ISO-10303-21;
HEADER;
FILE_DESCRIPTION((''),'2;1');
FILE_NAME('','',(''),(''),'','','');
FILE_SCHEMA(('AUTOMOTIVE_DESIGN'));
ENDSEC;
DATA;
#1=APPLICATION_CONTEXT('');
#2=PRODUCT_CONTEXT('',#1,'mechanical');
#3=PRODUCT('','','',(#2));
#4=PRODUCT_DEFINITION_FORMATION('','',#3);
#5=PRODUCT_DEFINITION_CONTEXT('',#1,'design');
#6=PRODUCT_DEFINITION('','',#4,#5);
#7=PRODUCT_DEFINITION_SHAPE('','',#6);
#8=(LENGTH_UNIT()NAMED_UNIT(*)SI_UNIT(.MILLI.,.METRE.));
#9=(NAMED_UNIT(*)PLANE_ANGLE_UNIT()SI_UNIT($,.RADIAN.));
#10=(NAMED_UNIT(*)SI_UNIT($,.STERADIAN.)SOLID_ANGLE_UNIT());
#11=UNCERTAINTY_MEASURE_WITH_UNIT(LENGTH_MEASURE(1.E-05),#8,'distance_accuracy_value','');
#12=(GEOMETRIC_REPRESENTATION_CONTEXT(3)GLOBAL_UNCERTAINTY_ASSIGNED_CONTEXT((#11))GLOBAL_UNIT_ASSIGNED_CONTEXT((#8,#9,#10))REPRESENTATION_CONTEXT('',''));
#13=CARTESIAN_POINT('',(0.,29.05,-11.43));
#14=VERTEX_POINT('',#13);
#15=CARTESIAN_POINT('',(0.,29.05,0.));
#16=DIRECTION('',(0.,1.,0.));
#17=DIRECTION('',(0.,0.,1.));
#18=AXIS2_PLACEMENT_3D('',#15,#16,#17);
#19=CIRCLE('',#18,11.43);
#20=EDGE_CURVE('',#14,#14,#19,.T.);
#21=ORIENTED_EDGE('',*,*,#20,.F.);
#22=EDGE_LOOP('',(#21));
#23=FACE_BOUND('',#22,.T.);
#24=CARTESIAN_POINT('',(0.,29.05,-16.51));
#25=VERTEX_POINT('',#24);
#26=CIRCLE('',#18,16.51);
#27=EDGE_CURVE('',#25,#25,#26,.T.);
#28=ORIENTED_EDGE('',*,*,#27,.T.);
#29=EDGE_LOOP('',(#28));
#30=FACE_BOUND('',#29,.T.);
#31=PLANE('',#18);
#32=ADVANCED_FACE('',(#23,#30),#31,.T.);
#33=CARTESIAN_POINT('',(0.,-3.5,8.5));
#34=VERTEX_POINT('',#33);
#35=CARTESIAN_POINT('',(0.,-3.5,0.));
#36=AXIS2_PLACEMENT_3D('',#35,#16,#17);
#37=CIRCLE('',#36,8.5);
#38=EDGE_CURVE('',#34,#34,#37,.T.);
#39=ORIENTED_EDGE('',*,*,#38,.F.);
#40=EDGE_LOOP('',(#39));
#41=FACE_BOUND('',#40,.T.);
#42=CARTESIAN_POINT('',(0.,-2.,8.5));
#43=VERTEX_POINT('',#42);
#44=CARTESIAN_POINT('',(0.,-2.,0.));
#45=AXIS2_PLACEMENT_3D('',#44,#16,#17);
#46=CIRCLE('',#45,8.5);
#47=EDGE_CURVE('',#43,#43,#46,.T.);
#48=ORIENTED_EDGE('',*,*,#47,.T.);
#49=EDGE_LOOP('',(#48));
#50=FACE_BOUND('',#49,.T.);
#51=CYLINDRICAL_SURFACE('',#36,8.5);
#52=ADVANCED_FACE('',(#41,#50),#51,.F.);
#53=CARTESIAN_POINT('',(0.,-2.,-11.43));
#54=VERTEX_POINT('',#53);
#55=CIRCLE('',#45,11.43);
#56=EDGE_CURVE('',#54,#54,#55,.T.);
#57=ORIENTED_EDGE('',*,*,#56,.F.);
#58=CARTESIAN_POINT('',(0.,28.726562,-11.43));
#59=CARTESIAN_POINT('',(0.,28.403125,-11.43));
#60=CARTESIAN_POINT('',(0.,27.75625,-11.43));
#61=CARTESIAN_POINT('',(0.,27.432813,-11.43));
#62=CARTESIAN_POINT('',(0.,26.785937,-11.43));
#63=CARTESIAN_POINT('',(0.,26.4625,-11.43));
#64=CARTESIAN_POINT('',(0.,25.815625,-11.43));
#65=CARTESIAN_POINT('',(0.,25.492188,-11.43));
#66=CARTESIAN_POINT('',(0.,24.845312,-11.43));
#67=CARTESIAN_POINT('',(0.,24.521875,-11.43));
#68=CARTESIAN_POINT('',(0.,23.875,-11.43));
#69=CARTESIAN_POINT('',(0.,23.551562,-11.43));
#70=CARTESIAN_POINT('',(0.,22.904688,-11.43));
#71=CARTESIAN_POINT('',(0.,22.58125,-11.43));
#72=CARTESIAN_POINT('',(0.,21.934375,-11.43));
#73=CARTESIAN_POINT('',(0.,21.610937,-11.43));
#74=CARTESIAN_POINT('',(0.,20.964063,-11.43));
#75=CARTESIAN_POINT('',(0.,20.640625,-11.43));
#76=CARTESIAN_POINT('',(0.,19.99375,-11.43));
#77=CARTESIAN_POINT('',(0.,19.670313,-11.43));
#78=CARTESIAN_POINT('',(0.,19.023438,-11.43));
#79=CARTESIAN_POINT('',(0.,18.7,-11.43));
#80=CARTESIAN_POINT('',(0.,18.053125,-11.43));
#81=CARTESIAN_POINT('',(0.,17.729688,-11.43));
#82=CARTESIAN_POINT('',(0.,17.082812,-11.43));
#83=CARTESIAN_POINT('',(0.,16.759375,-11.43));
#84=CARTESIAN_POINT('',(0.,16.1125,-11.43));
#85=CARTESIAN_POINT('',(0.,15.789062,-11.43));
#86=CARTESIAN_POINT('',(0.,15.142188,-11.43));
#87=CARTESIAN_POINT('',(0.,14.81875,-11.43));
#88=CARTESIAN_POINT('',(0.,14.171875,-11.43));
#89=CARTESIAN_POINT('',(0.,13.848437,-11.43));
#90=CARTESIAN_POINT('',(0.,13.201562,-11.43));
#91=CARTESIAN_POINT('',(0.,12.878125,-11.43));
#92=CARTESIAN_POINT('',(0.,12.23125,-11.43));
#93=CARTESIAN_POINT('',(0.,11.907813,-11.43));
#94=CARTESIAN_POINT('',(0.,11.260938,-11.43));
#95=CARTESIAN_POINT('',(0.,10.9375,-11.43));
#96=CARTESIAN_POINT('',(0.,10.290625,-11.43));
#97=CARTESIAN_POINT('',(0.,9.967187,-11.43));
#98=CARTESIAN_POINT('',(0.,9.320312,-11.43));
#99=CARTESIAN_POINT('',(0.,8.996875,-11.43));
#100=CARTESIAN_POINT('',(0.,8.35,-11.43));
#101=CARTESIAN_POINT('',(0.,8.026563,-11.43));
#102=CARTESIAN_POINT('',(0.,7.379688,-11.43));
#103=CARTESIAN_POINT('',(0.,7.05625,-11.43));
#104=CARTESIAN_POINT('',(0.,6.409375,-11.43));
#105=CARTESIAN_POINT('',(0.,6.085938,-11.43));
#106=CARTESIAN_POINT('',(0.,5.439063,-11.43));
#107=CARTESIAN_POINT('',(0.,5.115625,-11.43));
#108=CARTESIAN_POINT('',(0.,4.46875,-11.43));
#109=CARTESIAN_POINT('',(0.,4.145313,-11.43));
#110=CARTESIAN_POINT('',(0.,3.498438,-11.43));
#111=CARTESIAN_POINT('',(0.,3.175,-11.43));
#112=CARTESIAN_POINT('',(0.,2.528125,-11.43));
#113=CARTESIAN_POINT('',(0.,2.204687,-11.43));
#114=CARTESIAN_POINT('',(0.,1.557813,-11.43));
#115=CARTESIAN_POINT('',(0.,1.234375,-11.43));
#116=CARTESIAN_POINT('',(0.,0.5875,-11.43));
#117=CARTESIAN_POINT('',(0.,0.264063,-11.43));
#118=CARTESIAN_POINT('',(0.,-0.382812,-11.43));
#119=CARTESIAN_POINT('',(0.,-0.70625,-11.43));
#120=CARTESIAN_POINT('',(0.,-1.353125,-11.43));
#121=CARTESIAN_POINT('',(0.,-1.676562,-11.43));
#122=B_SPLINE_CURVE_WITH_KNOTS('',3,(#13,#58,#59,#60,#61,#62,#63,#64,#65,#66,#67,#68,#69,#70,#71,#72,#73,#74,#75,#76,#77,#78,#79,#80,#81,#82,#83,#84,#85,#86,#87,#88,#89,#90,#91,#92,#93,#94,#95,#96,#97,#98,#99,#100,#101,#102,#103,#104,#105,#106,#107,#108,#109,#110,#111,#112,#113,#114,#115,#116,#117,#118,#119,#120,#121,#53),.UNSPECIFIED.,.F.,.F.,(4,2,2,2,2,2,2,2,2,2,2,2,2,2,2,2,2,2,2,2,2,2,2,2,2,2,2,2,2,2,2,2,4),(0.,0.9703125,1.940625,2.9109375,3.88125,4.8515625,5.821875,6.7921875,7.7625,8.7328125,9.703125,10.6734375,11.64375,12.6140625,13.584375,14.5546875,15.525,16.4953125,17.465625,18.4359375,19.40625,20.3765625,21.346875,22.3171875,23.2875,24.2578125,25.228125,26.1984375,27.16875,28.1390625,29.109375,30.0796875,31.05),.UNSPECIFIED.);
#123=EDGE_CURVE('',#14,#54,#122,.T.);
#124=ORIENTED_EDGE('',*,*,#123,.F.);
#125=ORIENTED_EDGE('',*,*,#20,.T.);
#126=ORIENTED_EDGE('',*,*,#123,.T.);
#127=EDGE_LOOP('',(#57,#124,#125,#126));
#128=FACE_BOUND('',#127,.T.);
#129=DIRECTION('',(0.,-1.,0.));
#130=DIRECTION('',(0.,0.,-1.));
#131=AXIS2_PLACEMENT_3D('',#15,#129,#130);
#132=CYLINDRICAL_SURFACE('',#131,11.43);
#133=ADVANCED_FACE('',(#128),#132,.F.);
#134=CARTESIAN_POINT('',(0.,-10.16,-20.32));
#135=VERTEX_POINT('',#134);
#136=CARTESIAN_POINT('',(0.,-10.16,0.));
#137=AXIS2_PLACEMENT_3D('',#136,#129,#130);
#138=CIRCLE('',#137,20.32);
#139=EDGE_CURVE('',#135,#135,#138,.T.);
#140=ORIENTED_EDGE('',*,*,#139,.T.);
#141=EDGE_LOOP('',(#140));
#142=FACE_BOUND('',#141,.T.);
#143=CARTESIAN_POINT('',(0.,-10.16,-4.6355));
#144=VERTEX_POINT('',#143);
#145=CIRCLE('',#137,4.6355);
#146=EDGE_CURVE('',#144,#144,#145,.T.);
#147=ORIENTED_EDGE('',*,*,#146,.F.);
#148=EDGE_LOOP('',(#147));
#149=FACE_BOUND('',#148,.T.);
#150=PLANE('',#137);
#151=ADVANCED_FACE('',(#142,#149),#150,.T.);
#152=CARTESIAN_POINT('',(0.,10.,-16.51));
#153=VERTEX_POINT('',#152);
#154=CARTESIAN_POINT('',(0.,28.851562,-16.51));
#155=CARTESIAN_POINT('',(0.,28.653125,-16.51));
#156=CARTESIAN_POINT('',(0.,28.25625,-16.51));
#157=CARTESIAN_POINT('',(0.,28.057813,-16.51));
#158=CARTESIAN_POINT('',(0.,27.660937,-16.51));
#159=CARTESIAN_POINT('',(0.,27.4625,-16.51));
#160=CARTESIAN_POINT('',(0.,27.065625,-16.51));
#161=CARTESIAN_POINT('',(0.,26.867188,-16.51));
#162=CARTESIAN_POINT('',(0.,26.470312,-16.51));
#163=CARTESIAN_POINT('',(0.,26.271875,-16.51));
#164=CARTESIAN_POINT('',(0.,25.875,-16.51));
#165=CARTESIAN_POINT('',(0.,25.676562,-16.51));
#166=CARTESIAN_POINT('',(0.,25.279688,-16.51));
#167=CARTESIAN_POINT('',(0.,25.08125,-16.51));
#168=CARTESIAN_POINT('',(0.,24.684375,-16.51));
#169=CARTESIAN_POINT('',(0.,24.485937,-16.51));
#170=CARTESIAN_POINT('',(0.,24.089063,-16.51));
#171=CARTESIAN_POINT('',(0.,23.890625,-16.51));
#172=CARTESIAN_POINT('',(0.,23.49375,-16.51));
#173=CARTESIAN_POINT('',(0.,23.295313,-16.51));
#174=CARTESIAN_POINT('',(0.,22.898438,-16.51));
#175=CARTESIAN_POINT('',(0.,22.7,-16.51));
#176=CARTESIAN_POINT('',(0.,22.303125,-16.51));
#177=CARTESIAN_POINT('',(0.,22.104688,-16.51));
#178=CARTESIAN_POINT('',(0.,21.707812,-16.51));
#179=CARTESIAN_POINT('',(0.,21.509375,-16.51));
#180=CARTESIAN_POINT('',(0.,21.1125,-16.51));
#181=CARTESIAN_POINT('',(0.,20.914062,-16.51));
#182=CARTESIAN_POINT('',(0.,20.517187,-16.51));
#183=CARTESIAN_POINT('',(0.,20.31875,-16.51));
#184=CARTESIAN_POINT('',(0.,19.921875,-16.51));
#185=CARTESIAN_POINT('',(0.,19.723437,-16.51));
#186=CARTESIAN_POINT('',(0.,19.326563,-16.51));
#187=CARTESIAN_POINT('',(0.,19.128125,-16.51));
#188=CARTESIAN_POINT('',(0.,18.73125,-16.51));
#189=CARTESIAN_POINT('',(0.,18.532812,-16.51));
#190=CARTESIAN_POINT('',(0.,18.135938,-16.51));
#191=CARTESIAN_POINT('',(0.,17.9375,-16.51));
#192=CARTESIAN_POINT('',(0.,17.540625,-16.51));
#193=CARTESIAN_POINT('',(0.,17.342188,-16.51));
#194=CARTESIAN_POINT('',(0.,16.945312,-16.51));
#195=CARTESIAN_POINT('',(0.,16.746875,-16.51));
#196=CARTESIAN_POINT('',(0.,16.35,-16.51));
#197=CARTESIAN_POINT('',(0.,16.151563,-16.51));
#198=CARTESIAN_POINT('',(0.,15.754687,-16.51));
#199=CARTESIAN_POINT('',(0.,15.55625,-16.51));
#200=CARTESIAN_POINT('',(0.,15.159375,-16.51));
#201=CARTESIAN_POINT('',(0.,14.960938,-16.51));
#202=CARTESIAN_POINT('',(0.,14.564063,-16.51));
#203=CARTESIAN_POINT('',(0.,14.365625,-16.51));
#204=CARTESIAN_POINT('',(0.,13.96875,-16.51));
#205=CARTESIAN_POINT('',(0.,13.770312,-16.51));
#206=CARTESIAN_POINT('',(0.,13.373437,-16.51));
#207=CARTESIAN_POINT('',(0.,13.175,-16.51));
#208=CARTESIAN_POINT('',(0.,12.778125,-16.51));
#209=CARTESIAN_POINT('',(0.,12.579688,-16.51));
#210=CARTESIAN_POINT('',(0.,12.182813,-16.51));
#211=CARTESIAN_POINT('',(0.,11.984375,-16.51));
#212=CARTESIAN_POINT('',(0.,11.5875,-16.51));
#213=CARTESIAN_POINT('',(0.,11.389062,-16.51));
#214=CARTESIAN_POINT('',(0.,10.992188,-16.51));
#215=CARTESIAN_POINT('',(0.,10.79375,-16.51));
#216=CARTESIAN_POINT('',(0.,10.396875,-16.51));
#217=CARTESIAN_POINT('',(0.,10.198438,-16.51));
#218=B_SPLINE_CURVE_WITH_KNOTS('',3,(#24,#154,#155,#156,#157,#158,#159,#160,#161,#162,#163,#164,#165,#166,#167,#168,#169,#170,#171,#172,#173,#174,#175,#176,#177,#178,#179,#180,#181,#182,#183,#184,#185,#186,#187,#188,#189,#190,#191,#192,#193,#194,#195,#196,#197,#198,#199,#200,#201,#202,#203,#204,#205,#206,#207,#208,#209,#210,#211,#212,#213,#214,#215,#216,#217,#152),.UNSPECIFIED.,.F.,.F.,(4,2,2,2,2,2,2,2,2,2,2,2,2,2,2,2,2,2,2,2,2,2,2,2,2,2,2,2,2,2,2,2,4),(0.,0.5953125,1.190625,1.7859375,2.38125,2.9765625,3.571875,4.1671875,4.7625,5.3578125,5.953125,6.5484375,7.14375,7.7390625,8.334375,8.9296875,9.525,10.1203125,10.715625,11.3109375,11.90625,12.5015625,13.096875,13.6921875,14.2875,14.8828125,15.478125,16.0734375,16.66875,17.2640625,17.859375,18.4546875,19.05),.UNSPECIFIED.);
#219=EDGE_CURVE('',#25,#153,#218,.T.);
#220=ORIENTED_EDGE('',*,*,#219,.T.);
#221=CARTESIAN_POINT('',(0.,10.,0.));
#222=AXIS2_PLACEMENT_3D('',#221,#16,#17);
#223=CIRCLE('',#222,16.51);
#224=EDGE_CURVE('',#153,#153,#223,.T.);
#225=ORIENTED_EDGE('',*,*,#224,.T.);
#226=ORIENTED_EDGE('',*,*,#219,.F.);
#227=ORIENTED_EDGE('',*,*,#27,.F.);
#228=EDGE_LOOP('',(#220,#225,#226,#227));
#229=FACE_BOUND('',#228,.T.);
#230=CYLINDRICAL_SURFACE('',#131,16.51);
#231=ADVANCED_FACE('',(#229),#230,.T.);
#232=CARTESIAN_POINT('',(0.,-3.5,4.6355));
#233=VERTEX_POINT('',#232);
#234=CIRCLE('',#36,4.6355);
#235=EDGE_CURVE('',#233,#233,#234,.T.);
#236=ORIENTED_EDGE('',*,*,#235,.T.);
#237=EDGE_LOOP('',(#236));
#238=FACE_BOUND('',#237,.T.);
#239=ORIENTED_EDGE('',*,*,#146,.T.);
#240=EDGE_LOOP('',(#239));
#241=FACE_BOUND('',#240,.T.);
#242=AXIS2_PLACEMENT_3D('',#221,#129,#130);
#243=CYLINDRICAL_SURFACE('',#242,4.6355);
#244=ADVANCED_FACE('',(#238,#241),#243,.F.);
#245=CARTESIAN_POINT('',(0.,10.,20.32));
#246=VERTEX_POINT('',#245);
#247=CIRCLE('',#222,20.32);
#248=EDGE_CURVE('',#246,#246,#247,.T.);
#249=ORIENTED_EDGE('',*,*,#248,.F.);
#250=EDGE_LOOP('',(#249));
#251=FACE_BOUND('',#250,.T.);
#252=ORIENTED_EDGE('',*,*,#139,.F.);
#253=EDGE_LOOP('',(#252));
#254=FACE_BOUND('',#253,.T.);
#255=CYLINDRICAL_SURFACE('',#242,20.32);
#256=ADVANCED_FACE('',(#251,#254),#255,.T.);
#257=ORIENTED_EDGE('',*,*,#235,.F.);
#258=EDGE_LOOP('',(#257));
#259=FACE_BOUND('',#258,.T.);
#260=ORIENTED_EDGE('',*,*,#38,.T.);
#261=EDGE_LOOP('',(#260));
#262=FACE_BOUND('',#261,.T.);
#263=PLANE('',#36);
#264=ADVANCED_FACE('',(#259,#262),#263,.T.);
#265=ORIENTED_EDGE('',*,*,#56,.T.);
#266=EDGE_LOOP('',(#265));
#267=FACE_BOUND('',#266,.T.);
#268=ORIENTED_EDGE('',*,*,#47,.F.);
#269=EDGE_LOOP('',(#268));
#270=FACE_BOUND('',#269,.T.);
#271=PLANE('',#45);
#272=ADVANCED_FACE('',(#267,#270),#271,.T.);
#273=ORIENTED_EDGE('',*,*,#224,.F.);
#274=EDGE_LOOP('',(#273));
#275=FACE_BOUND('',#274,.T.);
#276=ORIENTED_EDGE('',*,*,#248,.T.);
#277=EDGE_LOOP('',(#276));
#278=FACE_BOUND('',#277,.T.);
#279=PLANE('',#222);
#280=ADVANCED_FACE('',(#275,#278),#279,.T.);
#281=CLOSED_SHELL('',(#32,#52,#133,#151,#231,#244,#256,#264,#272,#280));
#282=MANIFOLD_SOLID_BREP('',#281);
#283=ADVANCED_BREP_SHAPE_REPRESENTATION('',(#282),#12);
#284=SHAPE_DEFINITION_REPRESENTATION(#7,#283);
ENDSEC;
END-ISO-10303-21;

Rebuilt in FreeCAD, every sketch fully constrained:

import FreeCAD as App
import Part
import Sketcher
from FreeCAD import Vector
Q = App.Units.Quantity

doc = App.newDocument("Part")
body = doc.addObject("PartDesign::Body", "Body")

sketch1 = doc.addObject("Sketcher::SketchObject", "Sketch")
body.addObject(sketch1)
sketch1.AttachmentSupport = (doc.XZ_Plane, [""])
sketch1.MapMode = "FlatFace"
sketch1.addGeometry(Part.Circle(Vector(0, 0, 0), Vector(0, 0, 1), 20.3), False)
sketch1.addGeometry(Part.Circle(Vector(0, 0, 0), Vector(0, 0, 1), 4.6), False)
sketch1.addConstraint(Sketcher.Constraint("Coincident", 0, 3, -1, 1))
sketch1.addConstraint(Sketcher.Constraint("Coincident", 1, 3, -1, 1))
sketch1.addConstraint(Sketcher.Constraint("Diameter", 0, Q("1.6 in")))
sketch1.addConstraint(Sketcher.Constraint("Diameter", 1, Q("0.365 in")))
pad1 = doc.addObject("PartDesign::Pad", "Pad")
body.addObject(pad1)
pad1.Profile = sketch1
pad1.Length = 10
pad1.Reversed = True

sketch2 = doc.addObject("Sketcher::SketchObject", "Sketch001")
body.addObject(sketch2)
sketch2.AttachmentSupport = (doc.XZ_Plane, [""])
sketch2.MapMode = "FlatFace"
sketch2.AttachmentOffset = App.Placement(Vector(0, 0, -10), App.Rotation())
sketch2.addGeometry(Part.Circle(Vector(0, 0, 0), Vector(0, 0, 1), 17), False)
sketch2.addGeometry(Part.Circle(Vector(0, 0, 0), Vector(0, 0, 1), 11), False)
sketch2.addConstraint(Sketcher.Constraint("Coincident", 0, 3, -1, 1))
sketch2.addConstraint(Sketcher.Constraint("Coincident", 1, 3, -1, 1))
sketch2.addConstraint(Sketcher.Constraint("Diameter", 0, Q("1.3 in")))
sketch2.addConstraint(Sketcher.Constraint("Diameter", 1, Q("0.9 in")))
pad2 = doc.addObject("PartDesign::Pad", "Pad001")
body.addObject(pad2)
pad2.Profile = sketch2
pad2.Length = Q("0.75 in")
pad2.Reversed = True

sketch3 = doc.addObject("Sketcher::SketchObject", "Sketch002")
body.addObject(sketch3)
sketch3.AttachmentSupport = (doc.XZ_Plane, [""])
sketch3.MapMode = "FlatFace"
sketch3.AttachmentOffset = App.Placement(Vector(0, 0, 0.4 * 25.4), App.Rotation())
sketch3.addGeometry(Part.Circle(Vector(0, 0, 0), Vector(0, 0, 1), 20.3), False)
sketch3.addGeometry(Part.Circle(Vector(0, 0, 0), Vector(0, 0, 1), 4.6), False)
sketch3.addConstraint(Sketcher.Constraint("Coincident", 0, 3, -1, 1))
sketch3.addConstraint(Sketcher.Constraint("Coincident", 1, 3, -1, 1))
sketch3.addConstraint(Sketcher.Constraint("Diameter", 0, Q("1.6 in")))
sketch3.addConstraint(Sketcher.Constraint("Diameter", 1, Q("0.365 in")))
pad3 = doc.addObject("PartDesign::Pad", "Pad002")
body.addObject(pad3)
pad3.Profile = sketch3
pad3.Length = Q("0.4 in")
pad3.Reversed = True

sketch4 = doc.addObject("Sketcher::SketchObject", "Sketch003")
body.addObject(sketch4)
sketch4.AttachmentSupport = (doc.XZ_Plane, [""])
sketch4.MapMode = "FlatFace"
sketch4.AttachmentOffset = App.Placement(Vector(0, 0, 2), App.Rotation())
sketch4.addGeometry(Part.Circle(Vector(0, 0, 0), Vector(0, 0, 1), 11), False)
sketch4.addConstraint(Sketcher.Constraint("Coincident", 0, 3, -1, 1))
sketch4.addConstraint(Sketcher.Constraint("Diameter", 0, Q("0.9 in")))
pocket1 = doc.addObject("PartDesign::Pocket", "Pocket")
body.addObject(pocket1)
pocket1.Profile = sketch4
pocket1.Length = 12

sketch5 = doc.addObject("Sketcher::SketchObject", "Sketch004")
body.addObject(sketch5)
sketch5.AttachmentSupport = (doc.XZ_Plane, [""])
sketch5.MapMode = "FlatFace"
sketch5.AttachmentOffset = App.Placement(Vector(0, 0, 2), App.Rotation())
sketch5.addGeometry(Part.Circle(Vector(0, 0, 0), Vector(0, 0, 1), 8), False)
sketch5.addConstraint(Sketcher.Constraint("Coincident", 0, 3, -1, 1))
sketch5.addConstraint(Sketcher.Constraint("Diameter", 0, Q("17 mm")))
pocket2 = doc.addObject("PartDesign::Pocket", "Pocket001")
body.addObject(pocket2)
pocket2.Profile = sketch5
pocket2.Length = 1.5
pocket2.Reversed = True

doc.recompute()
